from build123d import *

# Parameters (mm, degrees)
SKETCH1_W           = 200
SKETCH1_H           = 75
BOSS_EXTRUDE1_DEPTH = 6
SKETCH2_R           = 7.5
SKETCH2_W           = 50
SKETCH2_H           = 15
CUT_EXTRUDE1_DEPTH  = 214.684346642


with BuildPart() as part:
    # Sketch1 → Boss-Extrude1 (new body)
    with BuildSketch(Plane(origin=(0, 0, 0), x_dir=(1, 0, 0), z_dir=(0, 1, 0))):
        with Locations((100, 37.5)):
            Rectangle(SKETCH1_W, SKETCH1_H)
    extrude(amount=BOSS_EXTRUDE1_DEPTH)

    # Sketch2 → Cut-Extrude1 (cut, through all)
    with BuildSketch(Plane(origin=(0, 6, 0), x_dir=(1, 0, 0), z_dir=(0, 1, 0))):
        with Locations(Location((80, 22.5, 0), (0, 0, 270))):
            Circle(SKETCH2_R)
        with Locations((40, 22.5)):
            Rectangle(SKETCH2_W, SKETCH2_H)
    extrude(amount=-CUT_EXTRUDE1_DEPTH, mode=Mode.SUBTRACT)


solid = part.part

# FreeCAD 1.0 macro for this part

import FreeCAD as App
import Part
import Sketcher
from FreeCAD import Vector
Q = App.Units.Quantity


def add_polygon(sketch, points):
    """Adds a closed chain of lines whose ends are joined by coincident constraints."""
    first, n = sketch.GeometryCount, len(points)
    for a, b in zip(points, points[1:] + points[:1]):
        sketch.addGeometry(Part.LineSegment(App.Vector(*a, 0), App.Vector(*b, 0)), False)
    for i in range(n):
        sketch.addConstraint(Sketcher.Constraint("Coincident", first + i, 2, first + (i + 1) % n, 1))

doc = App.newDocument("Part")
body = doc.addObject("PartDesign::Body", "Body")

# Sketch on XZ plane
sketch1 = body.newObject("Sketcher::SketchObject", "Sketch")
sketch1.AttachmentSupport = (doc.getObject("XZ_Plane"), [""])
sketch1.MapMode = "FlatFace"
add_polygon(sketch1, [(0, -75), (0, 0), (200, 0), (200, -75)])  # lines 0-3
sketch1.addConstraint([
    Sketcher.Constraint("Vertical", 0),
    Sketcher.Constraint("Horizontal", 1),
    Sketcher.Constraint("Vertical", 2),
    Sketcher.Constraint("Horizontal", 3),
    Sketcher.Constraint("Coincident", 0, 2, -1, 1),
    Sketcher.Constraint("DistanceX", 1, 1, 1, 2, Q("200 mm")),
    Sketcher.Constraint("DistanceY", 0, 1, 0, 2, Q("75 mm")),
])
pad1 = body.newObject("PartDesign::Pad", "Pad")
pad1.Profile = sketch1
pad1.Length = 6
pad1.Reversed = True

# Sketch on XZ plane
sketch2 = body.newObject("Sketcher::SketchObject", "Sketch001")
sketch2.AttachmentSupport = (doc.getObject("XZ_Plane"), [""])
sketch2.MapMode = "FlatFace"
sketch2.AttachmentOffset = App.Placement(Vector(0, 0, -6), App.Rotation())
sketch2.addGeometry(Part.Circle(Vector(80, -22, 0), Vector(0, 0, 1), 8), False)  # 0
add_polygon(sketch2, [(15, -30), (15, -15), (65, -15), (65, -30)])  # lines 1-4
sketch2.addConstraint([
    Sketcher.Constraint("Vertical", 1),
    Sketcher.Constraint("Horizontal", 2),
    Sketcher.Constraint("Vertical", 3),
    Sketcher.Constraint("Horizontal", 4),
    Sketcher.Constraint("Diameter", 0, Q("15 mm")),
    Sketcher.Constraint("DistanceX", 2, 1, 2, 2, Q("50 mm")),
    Sketcher.Constraint("DistanceY", 1, 1, 1, 2, Q("15 mm")),
    Sketcher.Constraint("DistanceX", -1, 1, 0, 3, Q("80 mm")),
    Sketcher.Constraint("DistanceX", -1, 1, 1, 2, Q("15 mm")),
    Sketcher.Constraint("DistanceY", 1, 2, -1, 1, Q("15 mm")),
    Sketcher.Constraint("DistanceY", 0, 3, -1, 1, Q("22.5 mm")),
])
pocket1 = body.newObject("PartDesign::Pocket", "Pocket")
pocket1.Profile = sketch2
pocket1.Type = "ThroughAll"
pocket1.Reversed = True

doc.recompute()
